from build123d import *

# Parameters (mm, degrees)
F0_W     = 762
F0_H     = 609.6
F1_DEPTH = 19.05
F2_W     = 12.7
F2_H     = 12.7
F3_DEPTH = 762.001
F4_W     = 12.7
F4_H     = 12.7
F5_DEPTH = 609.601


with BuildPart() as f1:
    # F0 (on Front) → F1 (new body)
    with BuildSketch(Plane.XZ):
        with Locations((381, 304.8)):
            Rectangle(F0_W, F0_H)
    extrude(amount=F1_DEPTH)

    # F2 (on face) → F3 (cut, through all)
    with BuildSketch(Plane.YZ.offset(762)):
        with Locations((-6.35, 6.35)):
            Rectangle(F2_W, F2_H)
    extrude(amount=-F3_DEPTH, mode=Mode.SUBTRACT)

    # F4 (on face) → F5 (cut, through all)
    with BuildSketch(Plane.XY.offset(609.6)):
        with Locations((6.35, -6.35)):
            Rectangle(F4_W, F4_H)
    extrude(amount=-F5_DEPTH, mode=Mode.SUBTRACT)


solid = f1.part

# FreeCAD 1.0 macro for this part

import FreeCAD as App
import Part
import Sketcher
from FreeCAD import Vector
Q = App.Units.Quantity

doc = App.newDocument("Part")
body = doc.addObject("PartDesign::Body", "Body")

# Sketch on XZ plane
sketch1 = body.newObject("Sketcher::SketchObject", "Sketch")
sketch1.AttachmentSupport = (doc.getObject("XZ_Plane"), [""])
sketch1.MapMode = "FlatFace"
sketch1.addGeometry(Part.LineSegment(Vector(0, 609.6, 0), Vector(0, 0, 0)), False)
sketch1.addGeometry(Part.LineSegment(Vector(0, 0, 0), Vector(762, 0, 0)), False)
sketch1.addGeometry(Part.LineSegment(Vector(762, 0, 0), Vector(762, 609.6, 0)), False)
sketch1.addGeometry(Part.LineSegment(Vector(762, 609.6, 0), Vector(0, 609.6, 0)), False)
sketch1.addConstraint(Sketcher.Constraint("Coincident", 0, 2, 1, 1))
sketch1.addConstraint(Sketcher.Constraint("Coincident", 1, 2, 2, 1))
sketch1.addConstraint(Sketcher.Constraint("Coincident", 2, 2, 3, 1))
sketch1.addConstraint(Sketcher.Constraint("Coincident", 3, 2, 0, 1))
sketch1.addConstraint(Sketcher.Constraint("Vertical", 0))
sketch1.addConstraint(Sketcher.Constraint("Horizontal", 1))
sketch1.addConstraint(Sketcher.Constraint("Vertical", 2))
sketch1.addConstraint(Sketcher.Constraint("Horizontal", 3))
sketch1.addConstraint(Sketcher.Constraint("Coincident", 0, 2, -1, 1))
sketch1.addConstraint(Sketcher.Constraint("DistanceX", 1, 1, 1, 2, Q("30 in")))
sketch1.addConstraint(Sketcher.Constraint("DistanceY", 0, 2, 0, 1, Q("24 in")))
pad1 = body.newObject("PartDesign::Pad", "Pad")
pad1.Profile = sketch1
pad1.Length = Q("0.75 in")

# Sketch on YZ plane
sketch2 = body.newObject("Sketcher::SketchObject", "Sketch001")
sketch2.AttachmentSupport = (doc.getObject("YZ_Plane"), [""])
sketch2.MapMode = "FlatFace"
sketch2.AttachmentOffset = App.Placement(Vector(0, 0, 30 * 25.4), App.Rotation())
sketch2.addGeometry(Part.LineSegment(Vector(-12.7, 12.7, 0), Vector(-12.7, 0, 0)), False)
sketch2.addGeometry(Part.LineSegment(Vector(-12.7, 0, 0), Vector(0, 0, 0)), False)
sketch2.addGeometry(Part.LineSegment(Vector(0, 0, 0), Vector(0, 12.7, 0)), False)
sketch2.addGeometry(Part.LineSegment(Vector(0, 12.7, 0), Vector(-12.7, 12.7, 0)), False)
sketch2.addConstraint(Sketcher.Constraint("Coincident", 0, 2, 1, 1))
sketch2.addConstraint(Sketcher.Constraint("Coincident", 1, 2, 2, 1))
sketch2.addConstraint(Sketcher.Constraint("Coincident", 2, 2, 3, 1))
sketch2.addConstraint(Sketcher.Constraint("Coincident", 3, 2, 0, 1))
sketch2.addConstraint(Sketcher.Constraint("Vertical", 0))
sketch2.addConstraint(Sketcher.Constraint("Horizontal", 1))
sketch2.addConstraint(Sketcher.Constraint("Vertical", 2))
sketch2.addConstraint(Sketcher.Constraint("Horizontal", 3))
sketch2.addConstraint(Sketcher.Constraint("Coincident", 1, 2, -1, 1))
sketch2.addConstraint(Sketcher.Constraint("Equal", 3, 0))
sketch2.addConstraint(Sketcher.Constraint("DistanceX", 1, 1, 1, 2, Q("0.5 in")))
pocket1 = body.newObject("PartDesign::Pocket", "Pocket")
pocket1.Profile = sketch2
pocket1.Type = "ThroughAll"

# Sketch on XY plane
sketch3 = body.newObject("Sketcher::SketchObject", "Sketch002")
sketch3.AttachmentSupport = (doc.getObject("XY_Plane"), [""])
sketch3.MapMode = "FlatFace"
sketch3.AttachmentOffset = App.Placement(Vector(0, 0, 24 * 25.4), App.Rotation())
sketch3.addGeometry(Part.LineSegment(Vector(0, 0, 0), Vector(0, -12.7, 0)), False)
sketch3.addGeometry(Part.LineSegment(Vector(0, -12.7, 0), Vector(12.7, -12.7, 0)), False)
sketch3.addGeometry(Part.LineSegment(Vector(12.7, -12.7, 0), Vector(12.7, 0, 0)), False)
sketch3.addGeometry(Part.LineSegment(Vector(12.7, 0, 0), Vector(0, 0, 0)), False)
sketch3.addConstraint(Sketcher.Constraint("Coincident", 0, 2, 1, 1))
sketch3.addConstraint(Sketcher.Constraint("Coincident", 1, 2, 2, 1))
sketch3.addConstraint(Sketcher.Constraint("Coincident", 2, 2, 3, 1))
sketch3.addConstraint(Sketcher.Constraint("Coincident", 3, 2, 0, 1))
sketch3.addConstraint(Sketcher.Constraint("Vertical", 0))
sketch3.addConstraint(Sketcher.Constraint("Horizontal", 1))
sketch3.addConstraint(Sketcher.Constraint("Vertical", 2))
sketch3.addConstraint(Sketcher.Constraint("Horizontal", 3))
sketch3.addConstraint(Sketcher.Constraint("Coincident", 3, 2, -1, 1))
sketch3.addConstraint(Sketcher.Constraint("Equal", 3, 0))
sketch3.addConstraint(Sketcher.Constraint("DistanceX", 1, 1, 1, 2, Q("0.5 in")))
pocket2 = body.newObject("PartDesign::Pocket", "Pocket001")
pocket2.Profile = sketch3
pocket2.Type = "ThroughAll"

doc.recompute()
